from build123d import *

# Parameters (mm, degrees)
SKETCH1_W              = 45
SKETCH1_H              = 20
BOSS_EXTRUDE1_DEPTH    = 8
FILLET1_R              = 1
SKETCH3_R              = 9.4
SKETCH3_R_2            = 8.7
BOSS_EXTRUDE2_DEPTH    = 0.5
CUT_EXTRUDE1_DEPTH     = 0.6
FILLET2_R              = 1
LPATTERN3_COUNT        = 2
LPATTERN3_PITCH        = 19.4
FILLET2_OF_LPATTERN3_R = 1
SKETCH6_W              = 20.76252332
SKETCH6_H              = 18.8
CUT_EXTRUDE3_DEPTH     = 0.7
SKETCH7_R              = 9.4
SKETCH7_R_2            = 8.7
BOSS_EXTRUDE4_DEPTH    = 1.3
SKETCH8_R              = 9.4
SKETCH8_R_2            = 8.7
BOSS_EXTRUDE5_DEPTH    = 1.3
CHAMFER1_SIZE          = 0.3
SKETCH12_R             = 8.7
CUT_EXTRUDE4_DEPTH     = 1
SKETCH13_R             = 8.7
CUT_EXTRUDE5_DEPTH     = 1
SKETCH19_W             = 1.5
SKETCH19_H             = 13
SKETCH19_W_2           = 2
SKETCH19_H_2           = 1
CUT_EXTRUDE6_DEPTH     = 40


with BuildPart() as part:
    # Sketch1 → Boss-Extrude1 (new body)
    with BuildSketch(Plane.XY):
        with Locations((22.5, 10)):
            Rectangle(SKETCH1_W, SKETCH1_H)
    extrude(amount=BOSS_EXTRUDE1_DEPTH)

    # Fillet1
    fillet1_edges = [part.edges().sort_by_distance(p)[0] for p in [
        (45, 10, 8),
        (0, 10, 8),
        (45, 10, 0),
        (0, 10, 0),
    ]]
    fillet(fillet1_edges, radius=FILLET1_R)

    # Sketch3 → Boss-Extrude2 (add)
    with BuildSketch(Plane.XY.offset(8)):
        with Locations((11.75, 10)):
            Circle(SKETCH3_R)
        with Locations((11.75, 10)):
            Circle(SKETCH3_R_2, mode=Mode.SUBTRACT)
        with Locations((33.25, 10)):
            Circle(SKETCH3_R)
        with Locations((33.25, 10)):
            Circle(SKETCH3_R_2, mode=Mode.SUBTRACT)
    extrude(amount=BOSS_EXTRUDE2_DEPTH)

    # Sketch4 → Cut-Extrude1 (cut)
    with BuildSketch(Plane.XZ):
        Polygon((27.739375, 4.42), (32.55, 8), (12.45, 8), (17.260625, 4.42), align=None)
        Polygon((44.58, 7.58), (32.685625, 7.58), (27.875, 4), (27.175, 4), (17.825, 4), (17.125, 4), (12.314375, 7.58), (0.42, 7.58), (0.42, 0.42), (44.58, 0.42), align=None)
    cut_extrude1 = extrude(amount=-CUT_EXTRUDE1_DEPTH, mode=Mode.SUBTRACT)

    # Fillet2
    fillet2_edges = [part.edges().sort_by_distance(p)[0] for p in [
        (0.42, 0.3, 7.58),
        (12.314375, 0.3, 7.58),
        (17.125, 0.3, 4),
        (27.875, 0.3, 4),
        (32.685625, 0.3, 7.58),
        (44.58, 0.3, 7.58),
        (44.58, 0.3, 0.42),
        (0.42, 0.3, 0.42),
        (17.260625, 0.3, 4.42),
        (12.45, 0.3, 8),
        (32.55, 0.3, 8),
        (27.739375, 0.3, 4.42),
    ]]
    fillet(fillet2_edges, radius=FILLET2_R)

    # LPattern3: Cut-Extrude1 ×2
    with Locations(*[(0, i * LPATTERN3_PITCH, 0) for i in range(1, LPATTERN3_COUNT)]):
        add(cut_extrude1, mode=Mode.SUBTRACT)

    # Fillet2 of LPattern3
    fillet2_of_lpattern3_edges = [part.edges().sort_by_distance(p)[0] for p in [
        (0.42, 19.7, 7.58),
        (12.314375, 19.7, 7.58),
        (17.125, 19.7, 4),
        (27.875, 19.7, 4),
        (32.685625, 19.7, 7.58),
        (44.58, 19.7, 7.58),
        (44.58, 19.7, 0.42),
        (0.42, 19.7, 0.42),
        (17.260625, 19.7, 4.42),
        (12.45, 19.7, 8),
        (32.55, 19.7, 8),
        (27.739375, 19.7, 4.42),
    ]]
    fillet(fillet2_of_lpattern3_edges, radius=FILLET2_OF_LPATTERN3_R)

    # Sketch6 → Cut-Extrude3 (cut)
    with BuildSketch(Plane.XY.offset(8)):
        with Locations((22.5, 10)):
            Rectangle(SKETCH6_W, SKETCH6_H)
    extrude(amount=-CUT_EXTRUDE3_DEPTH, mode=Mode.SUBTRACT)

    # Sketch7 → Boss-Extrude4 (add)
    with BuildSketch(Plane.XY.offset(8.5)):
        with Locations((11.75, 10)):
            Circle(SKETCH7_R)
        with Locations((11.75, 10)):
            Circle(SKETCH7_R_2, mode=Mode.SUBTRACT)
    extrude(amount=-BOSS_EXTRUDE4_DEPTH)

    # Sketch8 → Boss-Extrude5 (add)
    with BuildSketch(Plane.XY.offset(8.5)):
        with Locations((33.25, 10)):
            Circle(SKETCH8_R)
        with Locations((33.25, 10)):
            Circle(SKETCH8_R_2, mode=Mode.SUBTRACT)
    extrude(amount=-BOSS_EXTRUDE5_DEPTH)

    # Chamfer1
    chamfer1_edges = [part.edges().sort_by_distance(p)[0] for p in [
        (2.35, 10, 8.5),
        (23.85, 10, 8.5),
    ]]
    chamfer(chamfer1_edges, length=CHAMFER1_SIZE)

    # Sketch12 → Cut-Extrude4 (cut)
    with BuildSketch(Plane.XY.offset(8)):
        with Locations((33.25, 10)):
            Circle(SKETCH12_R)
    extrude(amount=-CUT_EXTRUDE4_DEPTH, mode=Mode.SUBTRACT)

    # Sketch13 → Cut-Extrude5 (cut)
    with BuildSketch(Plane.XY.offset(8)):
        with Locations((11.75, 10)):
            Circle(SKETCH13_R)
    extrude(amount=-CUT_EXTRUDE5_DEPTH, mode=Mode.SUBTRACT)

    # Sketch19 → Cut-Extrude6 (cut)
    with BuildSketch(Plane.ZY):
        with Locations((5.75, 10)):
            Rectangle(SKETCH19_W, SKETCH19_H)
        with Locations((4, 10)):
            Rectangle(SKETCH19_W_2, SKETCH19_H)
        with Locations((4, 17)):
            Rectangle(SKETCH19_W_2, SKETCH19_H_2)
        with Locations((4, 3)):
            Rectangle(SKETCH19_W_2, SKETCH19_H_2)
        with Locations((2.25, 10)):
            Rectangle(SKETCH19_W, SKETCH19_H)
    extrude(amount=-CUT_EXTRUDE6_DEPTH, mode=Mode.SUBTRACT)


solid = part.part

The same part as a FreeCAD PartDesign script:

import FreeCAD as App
import Part
import Sketcher
from FreeCAD import Vector


def edges_at(feature, points):
    """Names of the edges that pass closest to the given points."""
    edges = feature.Shape.Edges
    near = lambda p: min(range(len(edges)), key=lambda i: edges[i].distToShape(Part.Vertex(*p))[0])
    return sorted({f"Edge{near(p) + 1}" for p in points})

doc = App.newDocument("Part")
params = doc.addObject("Spreadsheet::Sheet", "Params")
for row, (alias, value) in enumerate([
    ("sketch1_width", "45 mm"),
    ("sketch1_height", "20 mm"),
    ("pad1_length", "8 mm"),
    ("fillet_radius", "1 mm"),
    ("sketch2_diameter", "18.8 mm"),
    ("sketch2_diameter2", "17.4 mm"),
    ("pad2_length", "0.5 mm"),
    ("sketch3_width", "20.1 mm"),
    ("sketch3_width2", "10.75 mm"),
    ("sketch3_width3", "44.16 mm"),
    ("sketch3_height", "7.16 mm"),
    ("pocket1_length", "0.6 mm"),
    ("fillet2_radius", "1 mm"),
    ("linearpattern_pitch", "19.4 mm"),
    ("fillet3_radius", "1 mm"),
    ("sketch4_height", "18.8 mm"),
    ("pocket2_length", "0.7 mm"),
    ("sketch5_diameter", "18.8 mm"),
    ("sketch5_diameter2", "17.4 mm"),
    ("pad3_length", "1.3 mm"),
    ("sketch6_diameter", "18.8 mm"),
    ("sketch6_diameter2", "17.4 mm"),
    ("pad4_length", "1.3 mm"),
    ("chamfer_size", "0.3 mm"),
    ("sketch7_diameter", "17.4 mm"),
    ("pocket3_length", "1 mm"),
    ("sketch8_diameter", "17.4 mm"),
    ("pocket4_length", "1 mm"),
    ("sketch9_width", "13 mm"),
    ("sketch9_width2", "1 mm"),
    ("sketch9_height", "2 mm"),
    ("sketch9_height2", "1.5 mm"),
    ("pocket5_length", "40 mm"),
], start=1):
    params.set(f"A{row}", alias)
    params.set(f"B{row}", "=" + value)
    params.setAlias(f"B{row}", alias)

body = doc.addObject("PartDesign::Body", "Body")

sketch1 = body.newObject("Sketcher::SketchObject", "Sketch")
sketch1.AttachmentSupport = (doc.getObject("XY_Plane"), [""])
sketch1.MapMode = "FlatFace"
sketch1.addGeometry([
    Part.LineSegment(Vector(0, 20, 0), Vector(0, 0, 0)),
    Part.LineSegment(Vector(0, 0, 0), Vector(45, 0, 0)),
    Part.LineSegment(Vector(45, 0, 0), Vector(45, 20, 0)),
    Part.LineSegment(Vector(45, 20, 0), Vector(0, 20, 0)),
], False)
sketch1.addConstraint([
    Sketcher.Constraint("Coincident", 0, 2, 1, 1),
    Sketcher.Constraint("Coincident", 1, 2, 2, 1),
    Sketcher.Constraint("Coincident", 2, 2, 3, 1),
    Sketcher.Constraint("Coincident", 3, 2, 0, 1),
    Sketcher.Constraint("Vertical", 0),
    Sketcher.Constraint("Horizontal", 1),
    Sketcher.Constraint("Vertical", 2),
    Sketcher.Constraint("Horizontal", 3),
    Sketcher.Constraint("Coincident", 0, 2, -1, 1),
    Sketcher.Constraint("DistanceX", 1, 1, 1, 2, 45.0),
    Sketcher.Constraint("DistanceY", 0, 2, 0, 1, 20.0),
])
sketch1.setExpression("Constraints[9]", "Params.sketch1_width")
sketch1.setExpression("Constraints[10]", "Params.sketch1_height")
pad1 = body.newObject("PartDesign::Pad", "Pad")
pad1.Profile = sketch1
pad1.setExpression("Length", "Params.pad1_length")
doc.recompute()

fillet = body.newObject("PartDesign::Fillet", "Fillet")
fillet.Base = (pad1, edges_at(pad1, [
    (45, 10, 8),
    (0, 10, 8),
    (45, 10, 0),
    (0, 10, 0),
]))
fillet.setExpression("Radius", "Params.fillet_radius")

sketch2 = body.newObject("Sketcher::SketchObject", "Sketch001")
sketch2.AttachmentSupport = (doc.getObject("XY_Plane"), [""])
sketch2.MapMode = "FlatFace"
sketch2.AttachmentOffset = App.Placement(Vector(0, 0, 8), App.Rotation())
sketch2.addGeometry([
    Part.Circle(Vector(12, 10, 0), Vector(0, 0, 1), 9),
    Part.Circle(Vector(12, 10, 0), Vector(0, 0, 1), 9),
    Part.Circle(Vector(33, 10, 0), Vector(0, 0, 1), 9),
    Part.Circle(Vector(33, 10, 0), Vector(0, 0, 1), 9),
], False)
sketch2.addConstraint([
    Sketcher.Constraint("Coincident", 1, 3, 0, 3),
    Sketcher.Constraint("Coincident", 3, 3, 2, 3),
    Sketcher.Constraint("Equal", 0, 2),
    Sketcher.Constraint("Equal", 1, 3),
    Sketcher.Constraint("Horizontal", 1, 3, 2, 3),
    Sketcher.Constraint("Diameter", 0, 18.8),
    Sketcher.Constraint("Diameter", 1, 17.4),
    Sketcher.Constraint("DistanceY", -1, 1, 0, 3, 10.0),
    Sketcher.Constraint("DistanceX", 0, 3, 2, 3, 21.5),
    Sketcher.Constraint("DistanceX", -1, 1, 0, 3, 11.75),
])
sketch2.setExpression("Constraints[5]", "Params.sketch2_diameter")
sketch2.setExpression("Constraints[6]", "Params.sketch2_diameter2")
pad2 = body.newObject("PartDesign::Pad", "Pad001")
pad2.Profile = sketch2
pad2.setExpression("Length", "Params.pad2_length")

sketch3 = body.newObject("Sketcher::SketchObject", "Sketch002")
sketch3.AttachmentSupport = (doc.getObject("XZ_Plane"), [""])
sketch3.MapMode = "FlatFace"
sketch3.addGeometry([
    Part.LineSegment(Vector(28, 4, 0), Vector(33, 8, 0)),
    Part.LineSegment(Vector(33, 8, 0), Vector(12, 8, 0)),
    Part.LineSegment(Vector(12, 8, 0), Vector(17, 4, 0)),
    Part.LineSegment(Vector(17, 4, 0), Vector(28, 4, 0)),
    Part.LineSegment(Vector(45, 8, 0), Vector(33, 8, 0)),
    Part.LineSegment(Vector(33, 8, 0), Vector(28, 4, 0)),
    Part.LineSegment(Vector(28, 4, 0), Vector(17, 4, 0)),
    Part.LineSegment(Vector(17, 4, 0), Vector(12, 8, 0)),
    Part.LineSegment(Vector(12, 8, 0), Vector(0, 8, 0)),
    Part.LineSegment(Vector(0, 8, 0), Vector(0, 0, 0)),
    Part.LineSegment(Vector(0, 0, 0), Vector(45, 0, 0)),
    Part.LineSegment(Vector(45, 0, 0), Vector(45, 8, 0)),
], False)
sketch3.addConstraint([
    Sketcher.Constraint("Coincident", 0, 2, 1, 1),
    Sketcher.Constraint("Coincident", 1, 2, 2, 1),
    Sketcher.Constraint("Coincident", 2, 2, 3, 1),
    Sketcher.Constraint("Coincident", 3, 2, 0, 1),
    Sketcher.Constraint("Coincident", 4, 2, 5, 1),
    Sketcher.Constraint("Coincident", 5, 2, 6, 1),
    Sketcher.Constraint("Coincident", 6, 2, 7, 1),
    Sketcher.Constraint("Coincident", 7, 2, 8, 1),
    Sketcher.Constraint("Coincident", 8, 2, 9, 1),
    Sketcher.Constraint("Coincident", 9, 2, 10, 1),
    Sketcher.Constraint("Coincident", 10, 2, 11, 1),
    Sketcher.Constraint("Coincident", 11, 2, 4, 1),
    Sketcher.Constraint("Horizontal", 1),
    Sketcher.Constraint("Horizontal", 3),
    Sketcher.Constraint("Horizontal", 4),
    Sketcher.Constraint("Horizontal", 6),
    Sketcher.Constraint("Horizontal", 8),
    Sketcher.Constraint("Vertical", 9),
    Sketcher.Constraint("Horizontal", 10),
    Sketcher.Constraint("Vertical", 11),
    Sketcher.Constraint("Parallel", 0, 5),
    Sketcher.Constraint("Parallel", 2, 7),
    Sketcher.Constraint("Horizontal", 4, 2, 7, 2),
    Sketcher.Constraint("Equal", 4, 8),
    Sketcher.Constraint("Equal", 0, 2),
    Sketcher.Constraint("Equal", 2, 5),
    Sketcher.Constraint("DistanceX", 1, 2, 1, 1, 20.1),
    Sketcher.Constraint("DistanceY", -1, 1, 0, 2, 8.0),
    Sketcher.Constraint("DistanceY", -1, 1, 5, 2, 4.0),
    Sketcher.Constraint("DistanceY", 9, 2, 2, 2, 4.0),
    Sketcher.Constraint("DistanceX", 6, 2, 6, 1, 10.75),
    Sketcher.Constraint("DistanceX", 10, 1, 10, 2, 44.16),
    Sketcher.Constraint("DistanceY", 9, 2, 9, 1, 7.16),
    Sketcher.Constraint("DistanceX", -1, 1, 0, 2, 32.55),
    Sketcher.Constraint("DistanceX", -1, 1, 8, 2, 0.42),
    Sketcher.Constraint("DistanceX", 3, 1, 3, 2, 10.47875),
])
sketch3.setExpression("Constraints[26]", "Params.sketch3_width")
sketch3.setExpression("Constraints[30]", "Params.sketch3_width2")
sketch3.setExpression("Constraints[31]", "Params.sketch3_width3")
sketch3.setExpression("Constraints[32]", "Params.sketch3_height")
pocket1 = body.newObject("PartDesign::Pocket", "Pocket")
pocket1.Profile = sketch3
pocket1.setExpression("Length", "Params.pocket1_length")
doc.recompute()

fillet2 = body.newObject("PartDesign::Fillet", "Fillet001")
fillet2.Base = (pocket1, edges_at(pocket1, [
    (0.42, 0.3, 7.58),
    (12.314, 0.3, 7.58),
    (17.125, 0.3, 4),
    (27.875, 0.3, 4),
    (32.686, 0.3, 7.58),
    (44.58, 0.3, 7.58),
    (44.58, 0.3, 0.42),
    (0.42, 0.3, 0.42),
    (17.261, 0.3, 4.42),
    (12.45, 0.3, 8),
    (32.55, 0.3, 8),
    (27.739, 0.3, 4.42),
]))
fillet2.setExpression("Radius", "Params.fillet2_radius")
doc.recompute()

linearpattern = body.newObject("PartDesign::LinearPattern", "LinearPattern")
linearpattern.Originals = [pocket1]
linearpattern.Direction = (doc.getObject("Y_Axis"), [""])
linearpattern.Mode = "offset"
linearpattern.setExpression("Offset", "Params.linearpattern_pitch")
linearpattern.Occurrences = 2
body.Tip = linearpattern
doc.recompute()

fillet3 = body.newObject("PartDesign::Fillet", "Fillet002")
fillet3.Base = (linearpattern, edges_at(linearpattern, [
    (0.42, 19.7, 7.58),
    (12.314, 19.7, 7.58),
    (17.125, 19.7, 4),
    (27.875, 19.7, 4),
    (32.686, 19.7, 7.58),
    (44.58, 19.7, 7.58),
    (44.58, 19.7, 0.42),
    (0.42, 19.7, 0.42),
    (17.261, 19.7, 4.42),
    (12.45, 19.7, 8),
    (32.55, 19.7, 8),
    (27.739, 19.7, 4.42),
]))
fillet3.setExpression("Radius", "Params.fillet3_radius")

sketch4 = body.newObject("Sketcher::SketchObject", "Sketch003")
sketch4.AttachmentSupport = (doc.getObject("XY_Plane"), [""])
sketch4.MapMode = "FlatFace"
sketch4.AttachmentOffset = App.Placement(Vector(0, 0, 8), App.Rotation())
sketch4.addGeometry([
    Part.LineSegment(Vector(12, 19, 0), Vector(12, 1, 0)),
    Part.LineSegment(Vector(12, 1, 0), Vector(33, 1, 0)),
    Part.LineSegment(Vector(33, 1, 0), Vector(33, 19, 0)),
    Part.LineSegment(Vector(33, 19, 0), Vector(12, 19, 0)),
], False)
sketch4.addConstraint([
    Sketcher.Constraint("Coincident", 0, 2, 1, 1),
    Sketcher.Constraint("Coincident", 1, 2, 2, 1),
    Sketcher.Constraint("Coincident", 2, 2, 3, 1),
    Sketcher.Constraint("Coincident", 3, 2, 0, 1),
    Sketcher.Constraint("Vertical", 0),
    Sketcher.Constraint("Horizontal", 1),
    Sketcher.Constraint("Vertical", 2),
    Sketcher.Constraint("Horizontal", 3),
    Sketcher.Constraint("DistanceY", 0, 2, 0, 1, 18.8),
    Sketcher.Constraint("DistanceY", -1, 1, 0, 2, 0.6),
    Sketcher.Constraint("DistanceX", 1, 1, 1, 2, 20.762523),
    Sketcher.Constraint("DistanceX", -1, 1, 0, 2, 12.118738),
])
sketch4.setExpression("Constraints[8]", "Params.sketch4_height")
pocket2 = body.newObject("PartDesign::Pocket", "Pocket001")
pocket2.Profile = sketch4
pocket2.setExpression("Length", "Params.pocket2_length")

sketch5 = body.newObject("Sketcher::SketchObject", "Sketch004")
sketch5.AttachmentSupport = (doc.getObject("XY_Plane"), [""])
sketch5.MapMode = "FlatFace"
sketch5.AttachmentOffset = App.Placement(Vector(0, 0, 8.5), App.Rotation())
sketch5.addGeometry([
    Part.Circle(Vector(12, 10, 0), Vector(0, 0, 1), 9),
    Part.Circle(Vector(12, 10, 0), Vector(0, 0, 1), 9),
], False)
sketch5.addConstraint([
    Sketcher.Constraint("Coincident", 1, 3, 0, 3),
    Sketcher.Constraint("Diameter", 0, 18.8),
    Sketcher.Constraint("Diameter", 1, 17.4),
    Sketcher.Constraint("DistanceY", -1, 1, 0, 3, 10.0),
    Sketcher.Constraint("DistanceX", -1, 1, 0, 3, 11.75),
])
sketch5.setExpression("Constraints[1]", "Params.sketch5_diameter")
sketch5.setExpression("Constraints[2]", "Params.sketch5_diameter2")
pad3 = body.newObject("PartDesign::Pad", "Pad002")
pad3.Profile = sketch5
pad3.setExpression("Length", "Params.pad3_length")
pad3.Reversed = True

sketch6 = body.newObject("Sketcher::SketchObject", "Sketch005")
sketch6.AttachmentSupport = (doc.getObject("XY_Plane"), [""])
sketch6.MapMode = "FlatFace"
sketch6.AttachmentOffset = App.Placement(Vector(0, 0, 8.5), App.Rotation())
sketch6.addGeometry([
    Part.Circle(Vector(33, 10, 0), Vector(0, 0, 1), 9),
    Part.Circle(Vector(33, 10, 0), Vector(0, 0, 1), 9),
], False)
sketch6.addConstraint([
    Sketcher.Constraint("Coincident", 1, 3, 0, 3),
    Sketcher.Constraint("Diameter", 0, 18.8),
    Sketcher.Constraint("Diameter", 1, 17.4),
    Sketcher.Constraint("DistanceY", -1, 1, 0, 3, 10.0),
    Sketcher.Constraint("DistanceX", -1, 1, 0, 3, 33.25),
])
sketch6.setExpression("Constraints[1]", "Params.sketch6_diameter")
sketch6.setExpression("Constraints[2]", "Params.sketch6_diameter2")
pad4 = body.newObject("PartDesign::Pad", "Pad003")
pad4.Profile = sketch6
pad4.setExpression("Length", "Params.pad4_length")
pad4.Reversed = True
doc.recompute()

chamfer = body.newObject("PartDesign::Chamfer", "Chamfer")
chamfer.Base = (pad4, edges_at(pad4, [(2.35, 10, 8.5), (23.85, 10, 8.5)]))
chamfer.setExpression("Size", "Params.chamfer_size")

sketch7 = body.newObject("Sketcher::SketchObject", "Sketch006")
sketch7.AttachmentSupport = (doc.getObject("XY_Plane"), [""])
sketch7.MapMode = "FlatFace"
sketch7.AttachmentOffset = App.Placement(Vector(0, 0, 8), App.Rotation())
sketch7.addGeometry(Part.Circle(Vector(33, 10, 0), Vector(0, 0, 1), 9), False)
sketch7.addConstraint([
    Sketcher.Constraint("Diameter", 0, 17.4),
    Sketcher.Constraint("DistanceY", -1, 1, 0, 3, 10.0),
    Sketcher.Constraint("DistanceX", -1, 1, 0, 3, 33.25),
])
sketch7.setExpression("Constraints[0]", "Params.sketch7_diameter")
pocket3 = body.newObject("PartDesign::Pocket", "Pocket002")
pocket3.Profile = sketch7
pocket3.setExpression("Length", "Params.pocket3_length")

sketch8 = body.newObject("Sketcher::SketchObject", "Sketch007")
sketch8.AttachmentSupport = (doc.getObject("XY_Plane"), [""])
sketch8.MapMode = "FlatFace"
sketch8.AttachmentOffset = App.Placement(Vector(0, 0, 8), App.Rotation())
sketch8.addGeometry(Part.Circle(Vector(12, 10, 0), Vector(0, 0, 1), 9), False)
sketch8.addConstraint([
    Sketcher.Constraint("Diameter", 0, 17.4),
    Sketcher.Constraint("DistanceY", -1, 1, 0, 3, 10.0),
    Sketcher.Constraint("DistanceX", -1, 1, 0, 3, 11.75),
])
sketch8.setExpression("Constraints[0]", "Params.sketch8_diameter")
pocket4 = body.newObject("PartDesign::Pocket", "Pocket003")
pocket4.Profile = sketch8
pocket4.setExpression("Length", "Params.pocket4_length")

sketch9 = body.newObject("Sketcher::SketchObject", "Sketch008")
sketch9.AttachmentSupport = (doc.getObject("YZ_Plane"), [""])
sketch9.MapMode = "FlatFace"
sketch9.addGeometry([
    Part.LineSegment(Vector(3.5, 6.5, 0), Vector(16.5, 6.5, 0)),
    Part.LineSegment(Vector(16.5, 6.5, 0), Vector(16.5, 5, 0)),
    Part.LineSegment(Vector(16.5, 5, 0), Vector(17.5, 5, 0)),
    Part.LineSegment(Vector(17.5, 5, 0), Vector(17.5, 3, 0)),
    Part.LineSegment(Vector(17.5, 3, 0), Vector(16.5, 3, 0)),
    Part.LineSegment(Vector(16.5, 3, 0), Vector(16.5, 1.5, 0)),
    Part.LineSegment(Vector(16.5, 1.5, 0), Vector(3.5, 1.5, 0)),
    Part.LineSegment(Vector(3.5, 1.5, 0), Vector(3.5, 3, 0)),
    Part.LineSegment(Vector(3.5, 3, 0), Vector(2.5, 3, 0)),
    Part.LineSegment(Vector(2.5, 3, 0), Vector(2.5, 5, 0)),
    Part.LineSegment(Vector(2.5, 5, 0), Vector(3.5, 5, 0)),
    Part.LineSegment(Vector(3.5, 5, 0), Vector(3.5, 6.5, 0)),
], False)
sketch9.addConstraint([
    Sketcher.Constraint("Coincident", 0, 2, 1, 1),
    Sketcher.Constraint("Coincident", 1, 2, 2, 1),
    Sketcher.Constraint("Coincident", 2, 2, 3, 1),
    Sketcher.Constraint("Coincident", 3, 2, 4, 1),
    Sketcher.Constraint("Coincident", 4, 2, 5, 1),
    Sketcher.Constraint("Coincident", 5, 2, 6, 1),
    Sketcher.Constraint("Coincident", 6, 2, 7, 1),
    Sketcher.Constraint("Coincident", 7, 2, 8, 1),
    Sketcher.Constraint("Coincident", 8, 2, 9, 1),
    Sketcher.Constraint("Coincident", 9, 2, 10, 1),
    Sketcher.Constraint("Coincident", 10, 2, 11, 1),
    Sketcher.Constraint("Coincident", 11, 2, 0, 1),
    Sketcher.Constraint("Horizontal", 0),
    Sketcher.Constraint("Vertical", 1),
    Sketcher.Constraint("Horizontal", 2),
    Sketcher.Constraint("Vertical", 3),
    Sketcher.Constraint("Horizontal", 4),
    Sketcher.Constraint("Vertical", 5),
    Sketcher.Constraint("Horizontal", 6),
    Sketcher.Constraint("Vertical", 7),
    Sketcher.Constraint("Horizontal", 8),
    Sketcher.Constraint("Vertical", 9),
    Sketcher.Constraint("Horizontal", 10),
    Sketcher.Constraint("Vertical", 11),
    Sketcher.Constraint("Horizontal", 4, 2, 7, 2),
    Sketcher.Constraint("Horizontal", 2, 2, 9, 2),
    Sketcher.Constraint("Vertical", 1, 2, 4, 2),
    Sketcher.Constraint("Vertical", 7, 2, 10, 2),
    Sketcher.Constraint("Equal", 4, 8),
    Sketcher.Constraint("Equal", 1, 5),
    Sketcher.Constraint("DistanceX", 0, 1, 0, 2, 13.0),
    Sketcher.Constraint("DistanceX", 2, 1, 2, 2, 1.0),
    Sketcher.Constraint("DistanceY", 3, 2, 3, 1, 2.0),
    Sketcher.Constraint("DistanceY", 1, 2, 1, 1, 1.5),
    Sketcher.Constraint("DistanceY", -1, 1, 1, 2, 5.0),
    Sketcher.Constraint("DistanceX", -1, 1, 0, 2, 16.5),
])
sketch9.setExpression("Constraints[30]", "Params.sketch9_width")
sketch9.setExpression("Constraints[31]", "Params.sketch9_width2")
sketch9.setExpression("Constraints[32]", "Params.sketch9_height")
sketch9.setExpression("Constraints[33]", "Params.sketch9_height2")
pocket5 = body.newObject("PartDesign::Pocket", "Pocket004")
pocket5.Profile = sketch9
pocket5.setExpression("Length", "Params.pocket5_length")
pocket5.Reversed = True

doc.recompute()
